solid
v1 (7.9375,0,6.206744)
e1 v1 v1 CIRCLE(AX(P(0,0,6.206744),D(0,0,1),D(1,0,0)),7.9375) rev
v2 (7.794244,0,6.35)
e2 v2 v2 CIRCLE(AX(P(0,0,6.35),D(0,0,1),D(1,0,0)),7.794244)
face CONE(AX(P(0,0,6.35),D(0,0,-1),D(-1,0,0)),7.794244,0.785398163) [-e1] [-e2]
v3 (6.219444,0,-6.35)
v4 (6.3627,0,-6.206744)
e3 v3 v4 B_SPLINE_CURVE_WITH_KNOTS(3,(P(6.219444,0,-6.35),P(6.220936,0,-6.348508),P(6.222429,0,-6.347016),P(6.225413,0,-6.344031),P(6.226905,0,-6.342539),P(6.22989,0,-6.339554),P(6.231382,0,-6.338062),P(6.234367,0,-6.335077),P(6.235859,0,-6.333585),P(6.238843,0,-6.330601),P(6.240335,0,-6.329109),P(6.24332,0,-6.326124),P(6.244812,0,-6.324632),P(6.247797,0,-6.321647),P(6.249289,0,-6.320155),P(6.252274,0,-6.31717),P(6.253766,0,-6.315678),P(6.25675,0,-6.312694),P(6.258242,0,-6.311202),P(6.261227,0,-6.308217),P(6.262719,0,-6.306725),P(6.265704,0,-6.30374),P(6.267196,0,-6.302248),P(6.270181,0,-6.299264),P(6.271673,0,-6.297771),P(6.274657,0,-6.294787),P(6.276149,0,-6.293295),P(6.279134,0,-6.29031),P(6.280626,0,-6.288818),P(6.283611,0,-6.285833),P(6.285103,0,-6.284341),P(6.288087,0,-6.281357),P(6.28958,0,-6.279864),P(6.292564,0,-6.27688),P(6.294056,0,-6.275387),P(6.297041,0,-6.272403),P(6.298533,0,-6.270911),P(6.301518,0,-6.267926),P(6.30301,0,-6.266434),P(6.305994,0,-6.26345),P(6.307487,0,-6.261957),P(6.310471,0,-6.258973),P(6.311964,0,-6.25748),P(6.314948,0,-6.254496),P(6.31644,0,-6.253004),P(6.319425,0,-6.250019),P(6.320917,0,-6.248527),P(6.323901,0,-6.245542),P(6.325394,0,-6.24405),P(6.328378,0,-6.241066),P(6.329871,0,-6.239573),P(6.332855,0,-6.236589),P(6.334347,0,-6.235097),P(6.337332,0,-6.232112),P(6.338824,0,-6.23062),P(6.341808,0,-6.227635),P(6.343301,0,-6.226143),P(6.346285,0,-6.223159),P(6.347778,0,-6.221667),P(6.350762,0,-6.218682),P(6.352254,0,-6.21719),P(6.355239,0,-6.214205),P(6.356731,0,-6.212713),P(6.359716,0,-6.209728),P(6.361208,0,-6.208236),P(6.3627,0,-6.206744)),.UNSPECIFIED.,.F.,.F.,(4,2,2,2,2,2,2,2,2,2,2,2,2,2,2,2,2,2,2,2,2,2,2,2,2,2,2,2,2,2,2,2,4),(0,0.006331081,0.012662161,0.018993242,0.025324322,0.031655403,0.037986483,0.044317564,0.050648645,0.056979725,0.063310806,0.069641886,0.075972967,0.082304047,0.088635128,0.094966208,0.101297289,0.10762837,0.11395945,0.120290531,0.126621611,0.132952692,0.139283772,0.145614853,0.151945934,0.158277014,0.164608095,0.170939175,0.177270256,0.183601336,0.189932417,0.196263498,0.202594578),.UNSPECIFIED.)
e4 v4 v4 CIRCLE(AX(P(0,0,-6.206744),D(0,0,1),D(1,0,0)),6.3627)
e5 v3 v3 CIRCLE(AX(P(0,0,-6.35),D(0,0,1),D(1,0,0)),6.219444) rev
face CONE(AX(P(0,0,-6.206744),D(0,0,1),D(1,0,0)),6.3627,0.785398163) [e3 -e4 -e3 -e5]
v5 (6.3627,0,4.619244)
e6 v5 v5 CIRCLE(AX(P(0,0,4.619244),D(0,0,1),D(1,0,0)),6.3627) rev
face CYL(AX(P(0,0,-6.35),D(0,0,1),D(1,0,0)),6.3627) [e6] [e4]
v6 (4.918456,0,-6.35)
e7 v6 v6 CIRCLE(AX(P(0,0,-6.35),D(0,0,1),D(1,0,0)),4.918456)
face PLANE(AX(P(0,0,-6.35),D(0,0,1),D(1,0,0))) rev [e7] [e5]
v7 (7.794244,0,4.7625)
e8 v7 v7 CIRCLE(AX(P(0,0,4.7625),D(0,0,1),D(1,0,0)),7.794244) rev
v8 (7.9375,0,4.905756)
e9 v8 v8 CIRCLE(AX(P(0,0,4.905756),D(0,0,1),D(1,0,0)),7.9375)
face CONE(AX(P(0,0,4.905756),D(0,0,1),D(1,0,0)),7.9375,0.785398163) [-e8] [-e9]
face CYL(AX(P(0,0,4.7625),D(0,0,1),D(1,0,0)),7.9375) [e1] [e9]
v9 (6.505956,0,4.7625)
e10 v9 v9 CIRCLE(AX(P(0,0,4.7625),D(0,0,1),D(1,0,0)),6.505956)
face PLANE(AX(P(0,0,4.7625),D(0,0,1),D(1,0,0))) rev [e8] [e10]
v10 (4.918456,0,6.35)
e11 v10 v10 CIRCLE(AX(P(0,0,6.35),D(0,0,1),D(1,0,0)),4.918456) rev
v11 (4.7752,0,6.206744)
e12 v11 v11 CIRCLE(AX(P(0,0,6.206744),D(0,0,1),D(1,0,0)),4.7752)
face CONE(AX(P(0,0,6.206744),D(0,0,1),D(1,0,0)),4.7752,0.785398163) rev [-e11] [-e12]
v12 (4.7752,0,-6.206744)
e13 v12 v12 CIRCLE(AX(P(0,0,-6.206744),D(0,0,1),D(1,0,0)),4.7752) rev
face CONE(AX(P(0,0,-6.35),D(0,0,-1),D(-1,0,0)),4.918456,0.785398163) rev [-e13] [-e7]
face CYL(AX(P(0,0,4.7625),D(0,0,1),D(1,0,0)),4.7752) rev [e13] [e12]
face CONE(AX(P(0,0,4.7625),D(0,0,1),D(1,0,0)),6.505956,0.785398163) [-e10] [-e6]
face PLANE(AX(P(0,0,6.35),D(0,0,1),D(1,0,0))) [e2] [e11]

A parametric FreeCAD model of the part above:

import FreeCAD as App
import Part
import Sketcher
Q = App.Units.Quantity


def edges_at(feature, points):
    """Names of the edges that pass closest to the given points."""
    edges = feature.Shape.Edges
    near = lambda p: min(range(len(edges)), key=lambda i: edges[i].distToShape(Part.Vertex(*p))[0])
    return sorted({f"Edge{near(p) + 1}" for p in points})

doc = App.newDocument("Part")
body = doc.addObject("PartDesign::Body", "Body")

# Sketch on XY plane
sketch1 = body.newObject("Sketcher::SketchObject", "Sketch")
sketch1.AttachmentSupport = (doc.getObject("XY_Plane"), [""])
sketch1.MapMode = "FlatFace"
sketch1.AttachmentOffset = App.Placement(App.Vector(0, 0, 0.25 * 25.4), App.Rotation())
sketch1.addGeometry([
    Part.Circle(App.Vector(0, 0, 0), App.Vector(0, 0, 1), 7.9),
    Part.Circle(App.Vector(0, 0, 0), App.Vector(0, 0, 1), 4.8),
], False)
sketch1.addConstraint([
    Sketcher.Constraint("Coincident", 0, 3, -1, 1),
    Sketcher.Constraint("Coincident", 1, 3, -1, 1),
    Sketcher.Constraint("Diameter", 0, Q("0.625 in")),
    Sketcher.Constraint("Diameter", 1, Q("0.376 in")),
])
pad1 = body.newObject("PartDesign::Pad", "Pad")
pad1.Profile = sketch1
pad1.Length = Q("0.0625 in")
pad1.Reversed = True

# Sketch on XY plane
sketch2 = body.newObject("Sketcher::SketchObject", "Sketch001")
sketch2.AttachmentSupport = (doc.getObject("XY_Plane"), [""])
sketch2.MapMode = "FlatFace"
sketch2.AttachmentOffset = App.Placement(App.Vector(0, 0, 0.1875 * 25.4), App.Rotation())
sketch2.addGeometry([
    Part.Circle(App.Vector(0, 0, 0), App.Vector(0, 0, 1), 6.4),
    Part.Circle(App.Vector(0, 0, 0), App.Vector(0, 0, 1), 4.8),
], False)
sketch2.addConstraint([
    Sketcher.Constraint("Coincident", 0, 3, -1, 1),
    Sketcher.Constraint("Coincident", 1, 3, -1, 1),
    Sketcher.Constraint("Diameter", 0, Q("0.501 in")),
    Sketcher.Constraint("Diameter", 1, Q("0.376 in")),
])
pad2 = body.newObject("PartDesign::Pad", "Pad001")
pad2.Profile = sketch2
pad2.Length = Q("0.4375 in")
pad2.Reversed = True
doc.recompute()

chamfer = body.newObject("PartDesign::Chamfer", "Chamfer")
chamfer.Base = (pad2, edges_at(pad2, [
    (-4.775, 0, -6.35),
    (-6.363, 0, 4.763),
    (-7.938, 0, 6.35),
    (-7.938, 0, 4.763),
    (-4.775, 0, 6.35),
    (-6.363, 0, -6.35),
]))
chamfer.Size = 0.143256

doc.recompute()
